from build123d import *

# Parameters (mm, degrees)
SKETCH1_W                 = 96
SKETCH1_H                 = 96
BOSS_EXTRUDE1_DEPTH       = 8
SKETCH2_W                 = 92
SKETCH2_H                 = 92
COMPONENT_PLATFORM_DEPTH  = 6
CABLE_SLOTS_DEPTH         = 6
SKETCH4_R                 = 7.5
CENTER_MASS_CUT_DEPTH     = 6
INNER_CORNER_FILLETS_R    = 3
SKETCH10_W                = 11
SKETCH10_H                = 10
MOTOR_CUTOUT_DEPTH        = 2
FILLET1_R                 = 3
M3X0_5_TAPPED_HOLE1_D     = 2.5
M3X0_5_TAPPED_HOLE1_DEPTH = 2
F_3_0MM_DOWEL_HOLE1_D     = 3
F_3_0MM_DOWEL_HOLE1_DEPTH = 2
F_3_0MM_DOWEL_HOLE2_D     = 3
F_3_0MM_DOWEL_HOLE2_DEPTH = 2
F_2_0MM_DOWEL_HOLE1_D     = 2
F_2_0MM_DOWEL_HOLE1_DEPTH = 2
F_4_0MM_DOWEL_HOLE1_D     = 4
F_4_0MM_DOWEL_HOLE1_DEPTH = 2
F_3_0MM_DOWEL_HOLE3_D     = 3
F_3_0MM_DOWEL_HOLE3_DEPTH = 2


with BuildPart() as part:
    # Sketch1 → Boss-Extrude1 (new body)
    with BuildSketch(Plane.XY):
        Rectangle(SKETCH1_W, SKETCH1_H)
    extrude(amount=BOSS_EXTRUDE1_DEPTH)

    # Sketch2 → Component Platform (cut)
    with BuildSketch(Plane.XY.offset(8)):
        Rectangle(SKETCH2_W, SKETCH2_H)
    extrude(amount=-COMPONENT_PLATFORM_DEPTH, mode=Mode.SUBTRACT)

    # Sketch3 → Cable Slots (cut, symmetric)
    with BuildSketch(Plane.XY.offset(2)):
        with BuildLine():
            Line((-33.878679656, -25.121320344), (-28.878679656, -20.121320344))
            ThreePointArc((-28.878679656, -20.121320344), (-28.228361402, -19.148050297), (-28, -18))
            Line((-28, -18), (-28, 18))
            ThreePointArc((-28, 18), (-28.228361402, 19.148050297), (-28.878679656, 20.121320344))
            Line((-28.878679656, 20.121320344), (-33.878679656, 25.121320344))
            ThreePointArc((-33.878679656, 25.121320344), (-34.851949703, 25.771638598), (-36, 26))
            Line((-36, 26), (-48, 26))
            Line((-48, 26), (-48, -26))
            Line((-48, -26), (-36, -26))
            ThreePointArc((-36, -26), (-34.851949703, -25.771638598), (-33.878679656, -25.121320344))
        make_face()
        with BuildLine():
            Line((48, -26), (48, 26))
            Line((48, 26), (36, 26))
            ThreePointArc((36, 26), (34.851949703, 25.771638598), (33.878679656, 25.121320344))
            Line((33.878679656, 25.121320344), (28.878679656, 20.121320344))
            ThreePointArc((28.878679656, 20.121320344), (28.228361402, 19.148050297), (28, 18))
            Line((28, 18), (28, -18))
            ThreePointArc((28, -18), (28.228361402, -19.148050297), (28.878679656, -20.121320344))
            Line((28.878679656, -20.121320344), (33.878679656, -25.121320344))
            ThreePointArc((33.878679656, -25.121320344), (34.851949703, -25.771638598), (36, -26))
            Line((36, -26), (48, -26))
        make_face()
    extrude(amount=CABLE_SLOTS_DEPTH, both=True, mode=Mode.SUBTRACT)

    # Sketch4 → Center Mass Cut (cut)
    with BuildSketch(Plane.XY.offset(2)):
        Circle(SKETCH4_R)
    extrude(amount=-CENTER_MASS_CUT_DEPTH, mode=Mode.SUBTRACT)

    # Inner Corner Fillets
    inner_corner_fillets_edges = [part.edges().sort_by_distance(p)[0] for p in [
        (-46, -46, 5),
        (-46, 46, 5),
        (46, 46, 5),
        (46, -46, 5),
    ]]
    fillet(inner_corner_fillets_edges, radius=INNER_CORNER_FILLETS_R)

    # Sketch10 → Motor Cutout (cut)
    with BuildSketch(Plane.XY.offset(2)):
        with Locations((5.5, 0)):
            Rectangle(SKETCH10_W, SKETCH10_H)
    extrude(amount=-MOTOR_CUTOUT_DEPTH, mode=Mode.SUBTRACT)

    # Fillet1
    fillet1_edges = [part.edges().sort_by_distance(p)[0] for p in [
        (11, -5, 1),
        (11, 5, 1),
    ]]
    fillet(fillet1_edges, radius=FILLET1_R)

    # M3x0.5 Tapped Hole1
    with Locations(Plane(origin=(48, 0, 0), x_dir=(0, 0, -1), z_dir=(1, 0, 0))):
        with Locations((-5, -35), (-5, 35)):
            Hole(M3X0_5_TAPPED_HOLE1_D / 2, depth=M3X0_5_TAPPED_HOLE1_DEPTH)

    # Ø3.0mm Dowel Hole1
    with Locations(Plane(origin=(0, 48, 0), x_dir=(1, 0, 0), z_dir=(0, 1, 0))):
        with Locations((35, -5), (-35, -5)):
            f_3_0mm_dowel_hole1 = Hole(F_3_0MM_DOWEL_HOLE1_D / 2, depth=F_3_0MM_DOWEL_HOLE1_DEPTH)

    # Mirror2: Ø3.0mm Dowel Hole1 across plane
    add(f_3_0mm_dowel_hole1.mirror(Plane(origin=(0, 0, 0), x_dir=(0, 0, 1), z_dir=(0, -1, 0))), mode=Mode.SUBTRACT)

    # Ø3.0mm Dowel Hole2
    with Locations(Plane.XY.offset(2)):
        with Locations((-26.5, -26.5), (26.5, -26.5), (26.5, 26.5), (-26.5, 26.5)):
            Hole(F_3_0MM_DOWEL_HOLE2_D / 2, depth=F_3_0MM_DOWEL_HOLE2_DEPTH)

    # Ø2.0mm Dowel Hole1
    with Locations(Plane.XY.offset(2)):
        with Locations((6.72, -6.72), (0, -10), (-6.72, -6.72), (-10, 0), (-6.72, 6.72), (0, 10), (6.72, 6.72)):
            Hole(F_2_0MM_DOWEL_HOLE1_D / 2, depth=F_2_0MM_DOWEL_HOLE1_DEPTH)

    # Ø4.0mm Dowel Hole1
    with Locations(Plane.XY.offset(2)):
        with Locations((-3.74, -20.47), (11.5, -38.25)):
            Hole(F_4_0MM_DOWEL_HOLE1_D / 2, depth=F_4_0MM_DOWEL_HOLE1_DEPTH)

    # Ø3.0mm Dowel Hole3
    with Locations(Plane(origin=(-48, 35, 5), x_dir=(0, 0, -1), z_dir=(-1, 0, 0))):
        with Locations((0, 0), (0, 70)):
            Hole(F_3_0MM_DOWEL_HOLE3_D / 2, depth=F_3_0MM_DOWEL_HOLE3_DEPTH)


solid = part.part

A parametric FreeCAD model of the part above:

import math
import FreeCAD as App
import Part
import Sketcher


def edges_at(feature, points):
    """Names of the edges that pass closest to the given points."""
    edges = feature.Shape.Edges
    near = lambda p: min(range(len(edges)), key=lambda i: edges[i].distToShape(Part.Vertex(*p))[0])
    return sorted({f"Edge{near(p) + 1}" for p in points})

doc = App.newDocument("Part")
body = doc.addObject("PartDesign::Body", "Body")

# Sketch on XY plane
sketch1 = body.newObject("Sketcher::SketchObject", "Sketch")
sketch1.AttachmentSupport = (doc.getObject("XY_Plane"), [""])
sketch1.MapMode = "FlatFace"
sketch1.addGeometry([
    Part.LineSegment(App.Vector(-48, 48, 0), App.Vector(-48, -48, 0)),
    Part.LineSegment(App.Vector(-48, -48, 0), App.Vector(48, -48, 0)),
    Part.LineSegment(App.Vector(48, -48, 0), App.Vector(48, 48, 0)),
    Part.LineSegment(App.Vector(48, 48, 0), App.Vector(-48, 48, 0)),
], False)
sketch1.addConstraint([
    Sketcher.Constraint("Coincident", 0, 2, 1, 1),
    Sketcher.Constraint("Coincident", 1, 2, 2, 1),
    Sketcher.Constraint("Coincident", 2, 2, 3, 1),
    Sketcher.Constraint("Coincident", 3, 2, 0, 1),
    Sketcher.Constraint("Vertical", 0),
    Sketcher.Constraint("Horizontal", 1),
    Sketcher.Constraint("Vertical", 2),
    Sketcher.Constraint("Horizontal", 3),
    Sketcher.Constraint("Symmetric", 0, 2, 2, 2, -1, 1),
    Sketcher.Constraint("Equal", 3, 0),
    Sketcher.Constraint("DistanceX", 1, 1, 1, 2, 96.0),
])
pad1 = body.newObject("PartDesign::Pad", "Pad")
pad1.Profile = sketch1
pad1.Length = 8

# Sketch on XY plane
sketch2 = body.newObject("Sketcher::SketchObject", "Sketch001")
sketch2.AttachmentSupport = (doc.getObject("XY_Plane"), [""])
sketch2.MapMode = "FlatFace"
sketch2.AttachmentOffset = App.Placement(App.Vector(0, 0, 8), App.Rotation())
sketch2.addGeometry([
    Part.LineSegment(App.Vector(-46, 46, 0), App.Vector(-46, -46, 0)),
    Part.LineSegment(App.Vector(-46, -46, 0), App.Vector(46, -46, 0)),
    Part.LineSegment(App.Vector(46, -46, 0), App.Vector(46, 46, 0)),
    Part.LineSegment(App.Vector(46, 46, 0), App.Vector(-46, 46, 0)),
], False)
sketch2.addConstraint([
    Sketcher.Constraint("Coincident", 0, 2, 1, 1),
    Sketcher.Constraint("Coincident", 1, 2, 2, 1),
    Sketcher.Constraint("Coincident", 2, 2, 3, 1),
    Sketcher.Constraint("Coincident", 3, 2, 0, 1),
    Sketcher.Constraint("Vertical", 0),
    Sketcher.Constraint("Horizontal", 1),
    Sketcher.Constraint("Vertical", 2),
    Sketcher.Constraint("Horizontal", 3),
    Sketcher.Constraint("Symmetric", 0, 2, 2, 2, -1, 1),
    Sketcher.Constraint("Equal", 3, 0),
    Sketcher.Constraint("DistanceX", 1, 1, 1, 2, 92.0),
])
pocket1 = body.newObject("PartDesign::Pocket", "Pocket")
pocket1.Profile = sketch2
pocket1.Length = 6

# Sketch on XY plane
sketch3 = body.newObject("Sketcher::SketchObject", "Sketch002")
sketch3.AttachmentSupport = (doc.getObject("XY_Plane"), [""])
sketch3.MapMode = "FlatFace"
sketch3.AttachmentOffset = App.Placement(App.Vector(0, 0, 2), App.Rotation())
sketch3.addGeometry([
    Part.LineSegment(App.Vector(-33.9, -25.1, 0), App.Vector(-28.9, -20.1, 0)),  # 0
    Part.ArcOfCircle(Part.Circle(App.Vector(-31, -18, 0), App.Vector(0, 0, 1), 3), math.radians(-45), math.radians(0)),  # 1
    Part.LineSegment(App.Vector(-28, -18, 0), App.Vector(-28, 18, 0)),  # 2
    Part.ArcOfCircle(Part.Circle(App.Vector(-31, 18, 0), App.Vector(0, 0, 1), 3), math.radians(0), math.radians(45)),  # 3
    Part.LineSegment(App.Vector(-28.9, 20.1, 0), App.Vector(-33.9, 25.1, 0)),  # 4
    Part.ArcOfCircle(Part.Circle(App.Vector(-36, 23, 0), App.Vector(0, 0, 1), 3), math.radians(45), math.radians(90)),  # 5
    Part.LineSegment(App.Vector(-36, 26, 0), App.Vector(-48, 26, 0)),  # 6
    Part.LineSegment(App.Vector(-48, 26, 0), App.Vector(-48, -26, 0)),  # 7
    Part.LineSegment(App.Vector(-48, -26, 0), App.Vector(-36, -26, 0)),  # 8
    Part.ArcOfCircle(Part.Circle(App.Vector(-36, -23, 0), App.Vector(0, 0, 1), 3), math.radians(-90), math.radians(-45)),  # 9
    Part.LineSegment(App.Vector(48, -26, 0), App.Vector(48, 26, 0)),  # 10
    Part.LineSegment(App.Vector(48, 26, 0), App.Vector(36, 26, 0)),  # 11
    Part.ArcOfCircle(Part.Circle(App.Vector(36, 23, 0), App.Vector(0, 0, 1), 3), math.radians(90), math.radians(135)),  # 12
    Part.LineSegment(App.Vector(33.9, 25.1, 0), App.Vector(28.9, 20.1, 0)),  # 13
    Part.ArcOfCircle(Part.Circle(App.Vector(31, 18, 0), App.Vector(0, 0, 1), 3), math.radians(135), math.radians(180)),  # 14
    Part.LineSegment(App.Vector(28, 18, 0), App.Vector(28, -18, 0)),  # 15
    Part.ArcOfCircle(Part.Circle(App.Vector(31, -18, 0), App.Vector(0, 0, 1), 3), math.radians(180), math.radians(225)),  # 16
    Part.LineSegment(App.Vector(28.9, -20.1, 0), App.Vector(33.9, -25.1, 0)),  # 17
    Part.ArcOfCircle(Part.Circle(App.Vector(36, -23, 0), App.Vector(0, 0, 1), 3), math.radians(-135), math.radians(-90)),  # 18
    Part.LineSegment(App.Vector(36, -26, 0), App.Vector(48, -26, 0)),  # 19
], False)
sketch3.addConstraint([
    Sketcher.Constraint("Tangent", 0, 2, 1, 1),
    Sketcher.Constraint("Tangent", 1, 2, 2, 1),
    Sketcher.Constraint("Tangent", 2, 2, 3, 1),
    Sketcher.Constraint("Tangent", 3, 2, 4, 1),
    Sketcher.Constraint("Tangent", 4, 2, 5, 1),
    Sketcher.Constraint("Tangent", 5, 2, 6, 1),
    Sketcher.Constraint("Coincident", 6, 2, 7, 1),
    Sketcher.Constraint("Coincident", 7, 2, 8, 1),
    Sketcher.Constraint("Tangent", 8, 2, 9, 1),
    Sketcher.Constraint("Tangent", 9, 2, 0, 1),
    Sketcher.Constraint("Coincident", 10, 2, 11, 1),
    Sketcher.Constraint("Tangent", 11, 2, 12, 1),
    Sketcher.Constraint("Tangent", 12, 2, 13, 1),
    Sketcher.Constraint("Tangent", 13, 2, 14, 1),
    Sketcher.Constraint("Tangent", 14, 2, 15, 1),
    Sketcher.Constraint("Tangent", 15, 2, 16, 1),
    Sketcher.Constraint("Tangent", 16, 2, 17, 1),
    Sketcher.Constraint("Tangent", 17, 2, 18, 1),
    Sketcher.Constraint("Tangent", 18, 2, 19, 1),
    Sketcher.Constraint("Coincident", 19, 2, 10, 1),
    Sketcher.Constraint("Vertical", 2),
    Sketcher.Constraint("Horizontal", 6),
    Sketcher.Constraint("Vertical", 7),
    Sketcher.Constraint("Horizontal", 8),
    Sketcher.Constraint("Vertical", 10),
    Sketcher.Constraint("Horizontal", 11),
    Sketcher.Constraint("Vertical", 15),
    Sketcher.Constraint("Horizontal", 19),
    Sketcher.Constraint("Equal", 1, 3),
    Sketcher.Constraint("Equal", 3, 5),
    Sketcher.Constraint("Equal", 5, 9),
    Sketcher.Constraint("Equal", 9, 12),
    Sketcher.Constraint("Equal", 12, 14),
    Sketcher.Constraint("Equal", 14, 16),
    Sketcher.Constraint("Equal", 16, 18),
    Sketcher.Constraint("Symmetric", 9, 3, 12, 3, -1, 1),
    Sketcher.Constraint("Symmetric", 1, 3, 14, 3, -1, 1),
    Sketcher.Constraint("Symmetric", 5, 3, 18, 3, -1, 1),
    Sketcher.Constraint("Symmetric", 5, 3, 12, 3, -2),
    Sketcher.Constraint("Perpendicular", 0, 4),
    Sketcher.Constraint("Perpendicular", 13, 17),
    Sketcher.Constraint("Horizontal", 3, 3, 14, 3),
    Sketcher.Constraint("Equal", 8, 11),
    Sketcher.Constraint("Radius", 1, 3.0),
    Sketcher.Constraint("DistanceX", 6, 2, 6, 1, 12.0),
    Sketcher.Constraint("DistanceY", 2, 1, 2, 2, 36.0),
    Sketcher.Constraint("DistanceY", 7, 2, 7, 1, 52.0),
    Sketcher.Constraint("DistanceX", 1, 3, -1, 1, 31.0),
])
pocket2 = body.newObject("PartDesign::Pocket", "Pocket001")
pocket2.Profile = sketch3
pocket2.Length = 12
pocket2.Midplane = True

# Sketch on XY plane
sketch4 = body.newObject("Sketcher::SketchObject", "Sketch003")
sketch4.AttachmentSupport = (doc.getObject("XY_Plane"), [""])
sketch4.MapMode = "FlatFace"
sketch4.AttachmentOffset = App.Placement(App.Vector(0, 0, 2), App.Rotation())
sketch4.addGeometry(Part.Circle(App.Vector(0, 0, 0), App.Vector(0, 0, 1), 8), False)
sketch4.addConstraint([
    Sketcher.Constraint("Coincident", 0, 3, -1, 1),
    Sketcher.Constraint("Diameter", 0, 15.0),
])
pocket3 = body.newObject("PartDesign::Pocket", "Pocket002")
pocket3.Profile = sketch4
pocket3.Length = 6
doc.recompute()

fillet = body.newObject("PartDesign::Fillet", "Fillet")
fillet.Base = (pocket3, edges_at(pocket3, [
    (-46, -46, 5),
    (-46, 46, 5),
    (46, 46, 5),
    (46, -46, 5),
]))
fillet.Radius = 3

# Sketch on XY plane
sketch5 = body.newObject("Sketcher::SketchObject", "Sketch004")
sketch5.AttachmentSupport = (doc.getObject("XY_Plane"), [""])
sketch5.MapMode = "FlatFace"
sketch5.AttachmentOffset = App.Placement(App.Vector(0, 0, 2), App.Rotation())
sketch5.addGeometry([
    Part.LineSegment(App.Vector(0, 5, 0), App.Vector(0, -5, 0)),
    Part.LineSegment(App.Vector(0, -5, 0), App.Vector(11, -5, 0)),
    Part.LineSegment(App.Vector(11, -5, 0), App.Vector(11, 5, 0)),
    Part.LineSegment(App.Vector(11, 5, 0), App.Vector(0, 5, 0)),
], False)
sketch5.addConstraint([
    Sketcher.Constraint("Coincident", 0, 2, 1, 1),
    Sketcher.Constraint("Coincident", 1, 2, 2, 1),
    Sketcher.Constraint("Coincident", 2, 2, 3, 1),
    Sketcher.Constraint("Coincident", 3, 2, 0, 1),
    Sketcher.Constraint("Vertical", 0),
    Sketcher.Constraint("Horizontal", 1),
    Sketcher.Constraint("Vertical", 2),
    Sketcher.Constraint("Horizontal", 3),
    Sketcher.Constraint("Symmetric", 0, 2, 3, 2, -1, 1),
    Sketcher.Constraint("DistanceX", 1, 1, 1, 2, 11.0),
    Sketcher.Constraint("DistanceY", 0, 2, 0, 1, 10.0),
])
pocket4 = body.newObject("PartDesign::Pocket", "Pocket003")
pocket4.Profile = sketch5
pocket4.Length = 2
doc.recompute()

fillet2 = body.newObject("PartDesign::Fillet", "Fillet001")
fillet2.Base = (pocket4, edges_at(pocket4, [(11, -5, 1), (11, 5, 1)]))
fillet2.Radius = 3

# Sketch on YZ plane
sketch6 = body.newObject("Sketcher::SketchObject", "Sketch005")
sketch6.AttachmentSupport = (doc.getObject("YZ_Plane"), [""])
sketch6.MapMode = "FlatFace"
sketch6.AttachmentOffset = App.Placement(App.Vector(0, 0, 48), App.Rotation())
sketch6.addGeometry([
    Part.Circle(App.Vector(-35, 5, 0), App.Vector(0, 0, 1), 1.2),
    Part.Circle(App.Vector(35, 5, 0), App.Vector(0, 0, 1), 1.2),
], False)
sketch6.addConstraint([
    Sketcher.Constraint("Equal", 0, 1),
    Sketcher.Constraint("Symmetric", 0, 3, 1, 3, -2),
    Sketcher.Constraint("Diameter", 0, 2.5),
    Sketcher.Constraint("DistanceX", 0, 3, -1, 1, 35.0),
    Sketcher.Constraint("DistanceY", -1, 1, 0, 3, 5.0),
])
doc.recompute()
hole = body.newObject("PartDesign::Hole", "Hole")
hole.Profile = sketch6
hole.ThreadType = "None"
hole.Diameter = 2.5
hole.DepthType = "Dimension"
hole.Depth = 2
hole.DrillPoint = "Flat"

# Sketch on XZ plane
sketch7 = body.newObject("Sketcher::SketchObject", "Sketch006")
sketch7.AttachmentSupport = (doc.getObject("XZ_Plane"), [""])
sketch7.MapMode = "FlatFace"
sketch7.AttachmentOffset = App.Placement(App.Vector(0, 0, -48), App.Rotation())
sketch7.addGeometry([
    Part.Circle(App.Vector(35, 5, 0), App.Vector(0, 0, 1), 1.5),
    Part.Circle(App.Vector(-35, 5, 0), App.Vector(0, 0, 1), 1.5),
], False)
sketch7.addConstraint([
    Sketcher.Constraint("Equal", 0, 1),
    Sketcher.Constraint("Symmetric", 0, 3, 1, 3, -2),
    Sketcher.Constraint("Diameter", 0, 3.0),
    Sketcher.Constraint("DistanceX", -1, 1, 0, 3, 35.0),
    Sketcher.Constraint("DistanceY", -1, 1, 0, 3, 5.0),
])
doc.recompute()
hole2 = body.newObject("PartDesign::Hole", "Hole001")
hole2.Profile = sketch7
hole2.ThreadType = "None"
hole2.Diameter = 3
hole2.DepthType = "Dimension"
hole2.Depth = 2
hole2.DrillPoint = "Flat"
hole2.Reversed = True
doc.recompute()

mirrored = body.newObject("PartDesign::Mirrored", "Mirrored")
mirrored.Originals = [hole2]
mirrored.MirrorPlane = (doc.getObject("XZ_Plane"), [""])
body.Tip = mirrored

# Sketch on XY plane
sketch8 = body.newObject("Sketcher::SketchObject", "Sketch007")
sketch8.AttachmentSupport = (doc.getObject("XY_Plane"), [""])
sketch8.MapMode = "FlatFace"
sketch8.AttachmentOffset = App.Placement(App.Vector(0, 0, 2), App.Rotation())
sketch8.addGeometry([
    Part.Circle(App.Vector(-26.5, -26.5, 0), App.Vector(0, 0, 1), 1.5),
    Part.Circle(App.Vector(26.5, -26.5, 0), App.Vector(0, 0, 1), 1.5),
    Part.Circle(App.Vector(26.5, 26.5, 0), App.Vector(0, 0, 1), 1.5),
    Part.Circle(App.Vector(-26.5, 26.5, 0), App.Vector(0, 0, 1), 1.5),
], False)
sketch8.addConstraint([
    Sketcher.Constraint("Equal", 0, 1),
    Sketcher.Constraint("Equal", 1, 2),
    Sketcher.Constraint("Equal", 2, 3),
    Sketcher.Constraint("Symmetric", 0, 3, 2, 3, -1, 1),
    Sketcher.Constraint("Symmetric", 1, 3, 3, 3, -1, 1),
    Sketcher.Constraint("Symmetric", 0, 3, 1, 3, -2),
    Sketcher.Constraint("Diameter", 0, 3.0),
    Sketcher.Constraint("DistanceX", 0, 3, 1, 3, 53.0),
    Sketcher.Constraint("DistanceY", 1, 3, 2, 3, 53.0),
])
doc.recompute()
hole3 = body.newObject("PartDesign::Hole", "Hole002")
hole3.Profile = sketch8
hole3.ThreadType = "None"
hole3.Diameter = 3
hole3.DepthType = "Dimension"
hole3.Depth = 2
hole3.DrillPoint = "Flat"

# Sketch on XY plane
sketch9 = body.newObject("Sketcher::SketchObject", "Sketch008")
sketch9.AttachmentSupport = (doc.getObject("XY_Plane"), [""])
sketch9.MapMode = "FlatFace"
sketch9.AttachmentOffset = App.Placement(App.Vector(0, 0, 2), App.Rotation())
sketch9.addGeometry([
    Part.Circle(App.Vector(6.7, -6.7, 0), App.Vector(0, 0, 1), 1),  # 0
    Part.Circle(App.Vector(0, -10, 0), App.Vector(0, 0, 1), 1),  # 1
    Part.Circle(App.Vector(-6.7, -6.7, 0), App.Vector(0, 0, 1), 1),  # 2
    Part.Circle(App.Vector(-10, 0, 0), App.Vector(0, 0, 1), 1),  # 3
    Part.Circle(App.Vector(-6.7, 6.7, 0), App.Vector(0, 0, 1), 1),  # 4
    Part.Circle(App.Vector(0, 10, 0), App.Vector(0, 0, 1), 1),  # 5
    Part.Circle(App.Vector(6.7, 6.7, 0), App.Vector(0, 0, 1), 1),  # 6
], False)
sketch9.addConstraint([
    Sketcher.Constraint("Equal", 0, 1),
    Sketcher.Constraint("Equal", 1, 2),
    Sketcher.Constraint("Equal", 2, 3),
    Sketcher.Constraint("Equal", 3, 4),
    Sketcher.Constraint("Equal", 4, 5),
    Sketcher.Constraint("Equal", 5, 6),
    Sketcher.Constraint("Symmetric", 0, 3, 4, 3, -1, 1),
    Sketcher.Constraint("Symmetric", 1, 3, 5, 3, -1, 1),
    Sketcher.Constraint("Symmetric", 2, 3, 6, 3, -1, 1),
    Sketcher.Constraint("Symmetric", 0, 3, 2, 3, -2),
    Sketcher.Constraint("PointOnObject", 1, 3, -2),
    Sketcher.Constraint("PointOnObject", 3, 3, -1),
    Sketcher.Constraint("Diameter", 0, 2.0),
    Sketcher.Constraint("DistanceY", 1, 3, -1, 1, 10.0),
    Sketcher.Constraint("DistanceX", 3, 3, -1, 1, 10.0),
    Sketcher.Constraint("DistanceX", -1, 1, 0, 3, 6.72),
    Sketcher.Constraint("DistanceY", 0, 3, -1, 1, 6.72),
])
doc.recompute()
hole4 = body.newObject("PartDesign::Hole", "Hole003")
hole4.Profile = sketch9
hole4.ThreadType = "None"
hole4.Diameter = 2
hole4.DepthType = "Dimension"
hole4.Depth = 2
hole4.DrillPoint = "Flat"

# Sketch on XY plane
sketch10 = body.newObject("Sketcher::SketchObject", "Sketch009")
sketch10.AttachmentSupport = (doc.getObject("XY_Plane"), [""])
sketch10.MapMode = "FlatFace"
sketch10.AttachmentOffset = App.Placement(App.Vector(0, 0, 2), App.Rotation())
sketch10.addGeometry([
    Part.Circle(App.Vector(-3.7, -20.5, 0), App.Vector(0, 0, 1), 2),
    Part.Circle(App.Vector(11.5, -38.2, 0), App.Vector(0, 0, 1), 2),
], False)
sketch10.addConstraint([
    Sketcher.Constraint("Equal", 0, 1),
    Sketcher.Constraint("Diameter", 0, 4.0),
    Sketcher.Constraint("DistanceX", -1, 1, 1, 3, 11.5),
    Sketcher.Constraint("DistanceX", 0, 3, -1, 1, 3.74),
    Sketcher.Constraint("DistanceY", 0, 3, -1, 1, 20.47),
    Sketcher.Constraint("DistanceY", 1, 3, -1, 1, 38.25),
])
doc.recompute()
hole5 = body.newObject("PartDesign::Hole", "Hole004")
hole5.Profile = sketch10
hole5.ThreadType = "None"
hole5.Diameter = 4
hole5.DepthType = "Dimension"
hole5.Depth = 2
hole5.DrillPoint = "Flat"

# Sketch on YZ plane
sketch11 = body.newObject("Sketcher::SketchObject", "Sketch010")
sketch11.AttachmentSupport = (doc.getObject("YZ_Plane"), [""])
sketch11.MapMode = "FlatFace"
sketch11.AttachmentOffset = App.Placement(App.Vector(0, 0, -48), App.Rotation())
sketch11.addGeometry([
    Part.Circle(App.Vector(35, 5, 0), App.Vector(0, 0, 1), 1.5),
    Part.Circle(App.Vector(-35, 5, 0), App.Vector(0, 0, 1), 1.5),
], False)
sketch11.addConstraint([
    Sketcher.Constraint("Equal", 0, 1),
    Sketcher.Constraint("Symmetric", 0, 3, 1, 3, -2),
    Sketcher.Constraint("Diameter", 0, 3.0),
    Sketcher.Constraint("DistanceX", -1, 1, 0, 3, 35.0),
    Sketcher.Constraint("DistanceY", -1, 1, 0, 3, 5.0),
])
doc.recompute()
hole6 = body.newObject("PartDesign::Hole", "Hole005")
hole6.Profile = sketch11
hole6.ThreadType = "None"
hole6.Diameter = 3
hole6.DepthType = "Dimension"
hole6.Depth = 2
hole6.DrillPoint = "Flat"
hole6.Reversed = True

doc.recompute()
